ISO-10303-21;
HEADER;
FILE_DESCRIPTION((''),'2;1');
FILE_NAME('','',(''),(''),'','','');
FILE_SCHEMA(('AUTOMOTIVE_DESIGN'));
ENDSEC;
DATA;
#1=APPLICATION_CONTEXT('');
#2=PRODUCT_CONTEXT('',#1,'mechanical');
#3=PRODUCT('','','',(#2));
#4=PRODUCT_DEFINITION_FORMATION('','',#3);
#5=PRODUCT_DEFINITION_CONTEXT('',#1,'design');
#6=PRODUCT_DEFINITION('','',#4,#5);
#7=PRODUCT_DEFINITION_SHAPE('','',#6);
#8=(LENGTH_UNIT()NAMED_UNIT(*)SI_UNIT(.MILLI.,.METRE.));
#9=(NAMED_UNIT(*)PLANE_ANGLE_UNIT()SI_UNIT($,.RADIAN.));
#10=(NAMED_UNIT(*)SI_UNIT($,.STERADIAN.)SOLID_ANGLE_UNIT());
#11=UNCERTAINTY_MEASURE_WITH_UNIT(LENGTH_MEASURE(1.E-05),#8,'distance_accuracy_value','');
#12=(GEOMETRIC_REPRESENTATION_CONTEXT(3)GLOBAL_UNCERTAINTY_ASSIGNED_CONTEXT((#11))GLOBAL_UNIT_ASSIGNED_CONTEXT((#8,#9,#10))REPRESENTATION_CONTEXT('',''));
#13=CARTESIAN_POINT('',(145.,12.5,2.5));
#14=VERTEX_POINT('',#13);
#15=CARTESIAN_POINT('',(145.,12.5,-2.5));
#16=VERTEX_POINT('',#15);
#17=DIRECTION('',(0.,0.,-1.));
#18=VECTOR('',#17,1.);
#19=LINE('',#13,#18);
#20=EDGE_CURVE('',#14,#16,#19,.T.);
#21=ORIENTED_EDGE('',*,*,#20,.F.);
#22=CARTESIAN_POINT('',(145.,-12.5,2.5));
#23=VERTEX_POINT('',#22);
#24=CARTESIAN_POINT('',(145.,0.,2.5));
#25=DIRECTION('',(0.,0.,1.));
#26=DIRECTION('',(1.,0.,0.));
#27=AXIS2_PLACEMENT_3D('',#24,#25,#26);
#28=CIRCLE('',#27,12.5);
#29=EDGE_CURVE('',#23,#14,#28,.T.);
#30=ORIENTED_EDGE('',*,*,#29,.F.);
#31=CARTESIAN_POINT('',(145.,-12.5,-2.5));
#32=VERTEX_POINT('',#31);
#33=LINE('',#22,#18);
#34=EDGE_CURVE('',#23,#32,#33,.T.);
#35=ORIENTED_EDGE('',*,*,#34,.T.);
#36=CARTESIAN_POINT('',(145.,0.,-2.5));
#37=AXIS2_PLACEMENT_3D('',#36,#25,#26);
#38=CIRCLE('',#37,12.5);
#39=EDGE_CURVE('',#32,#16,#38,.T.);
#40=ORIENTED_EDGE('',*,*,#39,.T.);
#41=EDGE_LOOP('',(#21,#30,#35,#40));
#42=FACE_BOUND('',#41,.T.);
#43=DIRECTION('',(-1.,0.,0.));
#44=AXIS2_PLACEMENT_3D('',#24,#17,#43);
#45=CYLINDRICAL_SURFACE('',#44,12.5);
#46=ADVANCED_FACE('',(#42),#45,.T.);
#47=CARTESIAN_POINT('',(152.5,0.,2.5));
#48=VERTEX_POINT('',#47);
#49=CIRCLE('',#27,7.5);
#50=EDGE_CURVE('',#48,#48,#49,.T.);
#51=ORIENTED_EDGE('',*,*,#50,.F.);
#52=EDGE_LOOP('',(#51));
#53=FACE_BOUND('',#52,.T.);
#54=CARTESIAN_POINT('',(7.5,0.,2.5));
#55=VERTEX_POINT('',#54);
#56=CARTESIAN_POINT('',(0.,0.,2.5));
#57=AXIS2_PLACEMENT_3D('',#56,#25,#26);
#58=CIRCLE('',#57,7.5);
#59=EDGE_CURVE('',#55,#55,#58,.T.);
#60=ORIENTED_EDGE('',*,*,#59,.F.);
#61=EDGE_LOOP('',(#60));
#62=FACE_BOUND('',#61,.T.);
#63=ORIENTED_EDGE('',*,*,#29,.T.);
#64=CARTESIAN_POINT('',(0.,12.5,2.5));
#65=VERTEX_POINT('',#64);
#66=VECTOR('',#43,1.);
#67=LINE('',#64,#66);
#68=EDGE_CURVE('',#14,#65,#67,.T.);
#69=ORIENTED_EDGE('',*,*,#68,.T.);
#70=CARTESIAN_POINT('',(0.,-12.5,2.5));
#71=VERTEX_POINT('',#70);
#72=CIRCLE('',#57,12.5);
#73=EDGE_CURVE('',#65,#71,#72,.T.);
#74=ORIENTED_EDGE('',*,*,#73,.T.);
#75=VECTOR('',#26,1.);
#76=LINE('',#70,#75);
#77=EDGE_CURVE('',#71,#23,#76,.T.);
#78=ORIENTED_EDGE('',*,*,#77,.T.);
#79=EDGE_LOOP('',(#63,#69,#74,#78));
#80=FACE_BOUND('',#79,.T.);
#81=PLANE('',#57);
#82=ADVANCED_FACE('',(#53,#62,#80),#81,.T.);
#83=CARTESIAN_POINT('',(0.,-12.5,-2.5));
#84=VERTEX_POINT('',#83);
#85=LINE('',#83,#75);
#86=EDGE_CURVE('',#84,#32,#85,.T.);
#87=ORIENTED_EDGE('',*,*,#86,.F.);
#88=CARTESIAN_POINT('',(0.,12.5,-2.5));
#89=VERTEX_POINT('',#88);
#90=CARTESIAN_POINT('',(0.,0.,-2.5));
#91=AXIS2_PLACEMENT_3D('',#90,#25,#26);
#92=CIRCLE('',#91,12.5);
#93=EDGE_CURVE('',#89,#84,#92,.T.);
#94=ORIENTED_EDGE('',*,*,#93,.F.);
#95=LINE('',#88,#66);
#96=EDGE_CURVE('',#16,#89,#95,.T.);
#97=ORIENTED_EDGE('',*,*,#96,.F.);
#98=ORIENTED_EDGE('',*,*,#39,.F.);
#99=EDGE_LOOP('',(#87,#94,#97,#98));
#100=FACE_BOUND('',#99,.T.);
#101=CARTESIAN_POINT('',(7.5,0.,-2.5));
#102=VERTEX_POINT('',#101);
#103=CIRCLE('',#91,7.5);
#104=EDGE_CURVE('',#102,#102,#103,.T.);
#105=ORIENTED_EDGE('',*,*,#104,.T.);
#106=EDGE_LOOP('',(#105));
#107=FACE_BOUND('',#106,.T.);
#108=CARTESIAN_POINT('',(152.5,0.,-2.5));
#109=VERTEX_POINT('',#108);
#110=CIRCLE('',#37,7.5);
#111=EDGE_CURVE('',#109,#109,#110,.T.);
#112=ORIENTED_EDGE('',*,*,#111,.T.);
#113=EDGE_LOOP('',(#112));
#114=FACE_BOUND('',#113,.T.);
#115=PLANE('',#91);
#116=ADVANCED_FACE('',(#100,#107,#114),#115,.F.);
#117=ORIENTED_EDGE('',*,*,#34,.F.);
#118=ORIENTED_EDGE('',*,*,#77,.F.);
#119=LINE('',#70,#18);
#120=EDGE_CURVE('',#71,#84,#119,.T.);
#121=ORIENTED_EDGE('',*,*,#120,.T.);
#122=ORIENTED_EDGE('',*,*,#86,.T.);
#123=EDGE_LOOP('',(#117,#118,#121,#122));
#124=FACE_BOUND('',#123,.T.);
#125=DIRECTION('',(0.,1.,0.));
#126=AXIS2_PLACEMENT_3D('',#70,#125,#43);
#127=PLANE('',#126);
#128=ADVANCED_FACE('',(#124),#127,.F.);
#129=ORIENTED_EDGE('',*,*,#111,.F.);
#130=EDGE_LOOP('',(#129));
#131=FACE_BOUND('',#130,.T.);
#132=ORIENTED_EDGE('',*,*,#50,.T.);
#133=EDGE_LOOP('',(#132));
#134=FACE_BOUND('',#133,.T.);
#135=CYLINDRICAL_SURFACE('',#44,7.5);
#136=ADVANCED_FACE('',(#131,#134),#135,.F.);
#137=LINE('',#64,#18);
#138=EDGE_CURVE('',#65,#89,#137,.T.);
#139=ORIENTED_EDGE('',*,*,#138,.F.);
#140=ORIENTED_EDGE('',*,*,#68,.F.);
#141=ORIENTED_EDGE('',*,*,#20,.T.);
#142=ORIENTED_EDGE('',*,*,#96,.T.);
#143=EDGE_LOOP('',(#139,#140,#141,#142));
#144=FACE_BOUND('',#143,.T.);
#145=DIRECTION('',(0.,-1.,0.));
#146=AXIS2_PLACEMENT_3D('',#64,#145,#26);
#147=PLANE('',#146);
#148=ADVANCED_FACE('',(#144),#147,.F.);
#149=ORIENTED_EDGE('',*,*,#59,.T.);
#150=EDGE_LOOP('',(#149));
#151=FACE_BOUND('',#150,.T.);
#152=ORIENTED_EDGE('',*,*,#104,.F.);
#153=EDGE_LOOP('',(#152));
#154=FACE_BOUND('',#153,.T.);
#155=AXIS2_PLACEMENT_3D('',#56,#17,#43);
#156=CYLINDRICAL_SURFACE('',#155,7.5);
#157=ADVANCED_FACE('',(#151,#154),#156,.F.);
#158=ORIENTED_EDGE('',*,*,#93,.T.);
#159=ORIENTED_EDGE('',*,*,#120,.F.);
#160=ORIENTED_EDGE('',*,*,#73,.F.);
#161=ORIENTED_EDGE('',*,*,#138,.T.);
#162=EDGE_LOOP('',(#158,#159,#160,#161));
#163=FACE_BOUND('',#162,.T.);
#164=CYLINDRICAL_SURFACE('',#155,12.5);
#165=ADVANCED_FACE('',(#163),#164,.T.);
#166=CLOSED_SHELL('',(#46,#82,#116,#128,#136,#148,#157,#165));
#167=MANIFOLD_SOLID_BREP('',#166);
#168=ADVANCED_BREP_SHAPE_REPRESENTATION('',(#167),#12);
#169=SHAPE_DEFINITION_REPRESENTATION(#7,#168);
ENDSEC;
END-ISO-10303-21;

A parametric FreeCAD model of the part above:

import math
import FreeCAD as App
import Part
import Sketcher

V = App.Vector
Q = App.Units.Quantity

doc = App.newDocument("Part")
body = doc.addObject("PartDesign::Body", "Body")

# Sketch on XY plane
sketch1 = body.newObject("Sketcher::SketchObject", "Sketch")
sketch1.AttachmentSupport = (doc.getObject("XY_Plane"), [""])
sketch1.MapMode = "FlatFace"
sketch1.addGeometry(Part.LineSegment(V(145, 12.5, 0), V(0, 12.5, 0)), False)
sketch1.addGeometry(Part.ArcOfCircle(Part.Circle(V(0, 0, 0), V(0, 0, 1), 12.5), math.radians(90), math.radians(270)), False)
sketch1.addGeometry(Part.LineSegment(V(0, -12.5, 0), V(145, -12.5, 0)), False)
sketch1.addGeometry(Part.ArcOfCircle(Part.Circle(V(145, 0, 0), V(0, 0, 1), 12.5), math.radians(-90), math.radians(90)), False)
sketch1.addGeometry(Part.Circle(V(145, 0, 0), V(0, 0, 1), 7.5), False)
sketch1.addGeometry(Part.Circle(V(0, 0, 0), V(0, 0, 1), 7.5), False)
sketch1.addConstraint(Sketcher.Constraint("Tangent", 0, 2, 1, 1))
sketch1.addConstraint(Sketcher.Constraint("Tangent", 1, 2, 2, 1))
sketch1.addConstraint(Sketcher.Constraint("Tangent", 2, 2, 3, 1))
sketch1.addConstraint(Sketcher.Constraint("Tangent", 3, 2, 0, 1))
sketch1.addConstraint(Sketcher.Constraint("Horizontal", 0))
sketch1.addConstraint(Sketcher.Constraint("Horizontal", 2))
sketch1.addConstraint(Sketcher.Constraint("Coincident", 1, 3, -1, 1))
sketch1.addConstraint(Sketcher.Constraint("Coincident", 5, 3, -1, 1))
sketch1.addConstraint(Sketcher.Constraint("Coincident", 4, 3, 3, 3))
sketch1.addConstraint(Sketcher.Constraint("Equal", 4, 5))
sketch1.addConstraint(Sketcher.Constraint("Diameter", 4, Q("15 mm")))
sketch1.addConstraint(Sketcher.Constraint("Radius", 1, Q("12.5 mm")))
sketch1.addConstraint(Sketcher.Constraint("DistanceX", 0, 2, 0, 1, Q("145 mm")))
pad1 = body.newObject("PartDesign::Pad", "Pad")
pad1.Profile = sketch1
pad1.Length = 5
pad1.Midplane = True

doc.recompute()
